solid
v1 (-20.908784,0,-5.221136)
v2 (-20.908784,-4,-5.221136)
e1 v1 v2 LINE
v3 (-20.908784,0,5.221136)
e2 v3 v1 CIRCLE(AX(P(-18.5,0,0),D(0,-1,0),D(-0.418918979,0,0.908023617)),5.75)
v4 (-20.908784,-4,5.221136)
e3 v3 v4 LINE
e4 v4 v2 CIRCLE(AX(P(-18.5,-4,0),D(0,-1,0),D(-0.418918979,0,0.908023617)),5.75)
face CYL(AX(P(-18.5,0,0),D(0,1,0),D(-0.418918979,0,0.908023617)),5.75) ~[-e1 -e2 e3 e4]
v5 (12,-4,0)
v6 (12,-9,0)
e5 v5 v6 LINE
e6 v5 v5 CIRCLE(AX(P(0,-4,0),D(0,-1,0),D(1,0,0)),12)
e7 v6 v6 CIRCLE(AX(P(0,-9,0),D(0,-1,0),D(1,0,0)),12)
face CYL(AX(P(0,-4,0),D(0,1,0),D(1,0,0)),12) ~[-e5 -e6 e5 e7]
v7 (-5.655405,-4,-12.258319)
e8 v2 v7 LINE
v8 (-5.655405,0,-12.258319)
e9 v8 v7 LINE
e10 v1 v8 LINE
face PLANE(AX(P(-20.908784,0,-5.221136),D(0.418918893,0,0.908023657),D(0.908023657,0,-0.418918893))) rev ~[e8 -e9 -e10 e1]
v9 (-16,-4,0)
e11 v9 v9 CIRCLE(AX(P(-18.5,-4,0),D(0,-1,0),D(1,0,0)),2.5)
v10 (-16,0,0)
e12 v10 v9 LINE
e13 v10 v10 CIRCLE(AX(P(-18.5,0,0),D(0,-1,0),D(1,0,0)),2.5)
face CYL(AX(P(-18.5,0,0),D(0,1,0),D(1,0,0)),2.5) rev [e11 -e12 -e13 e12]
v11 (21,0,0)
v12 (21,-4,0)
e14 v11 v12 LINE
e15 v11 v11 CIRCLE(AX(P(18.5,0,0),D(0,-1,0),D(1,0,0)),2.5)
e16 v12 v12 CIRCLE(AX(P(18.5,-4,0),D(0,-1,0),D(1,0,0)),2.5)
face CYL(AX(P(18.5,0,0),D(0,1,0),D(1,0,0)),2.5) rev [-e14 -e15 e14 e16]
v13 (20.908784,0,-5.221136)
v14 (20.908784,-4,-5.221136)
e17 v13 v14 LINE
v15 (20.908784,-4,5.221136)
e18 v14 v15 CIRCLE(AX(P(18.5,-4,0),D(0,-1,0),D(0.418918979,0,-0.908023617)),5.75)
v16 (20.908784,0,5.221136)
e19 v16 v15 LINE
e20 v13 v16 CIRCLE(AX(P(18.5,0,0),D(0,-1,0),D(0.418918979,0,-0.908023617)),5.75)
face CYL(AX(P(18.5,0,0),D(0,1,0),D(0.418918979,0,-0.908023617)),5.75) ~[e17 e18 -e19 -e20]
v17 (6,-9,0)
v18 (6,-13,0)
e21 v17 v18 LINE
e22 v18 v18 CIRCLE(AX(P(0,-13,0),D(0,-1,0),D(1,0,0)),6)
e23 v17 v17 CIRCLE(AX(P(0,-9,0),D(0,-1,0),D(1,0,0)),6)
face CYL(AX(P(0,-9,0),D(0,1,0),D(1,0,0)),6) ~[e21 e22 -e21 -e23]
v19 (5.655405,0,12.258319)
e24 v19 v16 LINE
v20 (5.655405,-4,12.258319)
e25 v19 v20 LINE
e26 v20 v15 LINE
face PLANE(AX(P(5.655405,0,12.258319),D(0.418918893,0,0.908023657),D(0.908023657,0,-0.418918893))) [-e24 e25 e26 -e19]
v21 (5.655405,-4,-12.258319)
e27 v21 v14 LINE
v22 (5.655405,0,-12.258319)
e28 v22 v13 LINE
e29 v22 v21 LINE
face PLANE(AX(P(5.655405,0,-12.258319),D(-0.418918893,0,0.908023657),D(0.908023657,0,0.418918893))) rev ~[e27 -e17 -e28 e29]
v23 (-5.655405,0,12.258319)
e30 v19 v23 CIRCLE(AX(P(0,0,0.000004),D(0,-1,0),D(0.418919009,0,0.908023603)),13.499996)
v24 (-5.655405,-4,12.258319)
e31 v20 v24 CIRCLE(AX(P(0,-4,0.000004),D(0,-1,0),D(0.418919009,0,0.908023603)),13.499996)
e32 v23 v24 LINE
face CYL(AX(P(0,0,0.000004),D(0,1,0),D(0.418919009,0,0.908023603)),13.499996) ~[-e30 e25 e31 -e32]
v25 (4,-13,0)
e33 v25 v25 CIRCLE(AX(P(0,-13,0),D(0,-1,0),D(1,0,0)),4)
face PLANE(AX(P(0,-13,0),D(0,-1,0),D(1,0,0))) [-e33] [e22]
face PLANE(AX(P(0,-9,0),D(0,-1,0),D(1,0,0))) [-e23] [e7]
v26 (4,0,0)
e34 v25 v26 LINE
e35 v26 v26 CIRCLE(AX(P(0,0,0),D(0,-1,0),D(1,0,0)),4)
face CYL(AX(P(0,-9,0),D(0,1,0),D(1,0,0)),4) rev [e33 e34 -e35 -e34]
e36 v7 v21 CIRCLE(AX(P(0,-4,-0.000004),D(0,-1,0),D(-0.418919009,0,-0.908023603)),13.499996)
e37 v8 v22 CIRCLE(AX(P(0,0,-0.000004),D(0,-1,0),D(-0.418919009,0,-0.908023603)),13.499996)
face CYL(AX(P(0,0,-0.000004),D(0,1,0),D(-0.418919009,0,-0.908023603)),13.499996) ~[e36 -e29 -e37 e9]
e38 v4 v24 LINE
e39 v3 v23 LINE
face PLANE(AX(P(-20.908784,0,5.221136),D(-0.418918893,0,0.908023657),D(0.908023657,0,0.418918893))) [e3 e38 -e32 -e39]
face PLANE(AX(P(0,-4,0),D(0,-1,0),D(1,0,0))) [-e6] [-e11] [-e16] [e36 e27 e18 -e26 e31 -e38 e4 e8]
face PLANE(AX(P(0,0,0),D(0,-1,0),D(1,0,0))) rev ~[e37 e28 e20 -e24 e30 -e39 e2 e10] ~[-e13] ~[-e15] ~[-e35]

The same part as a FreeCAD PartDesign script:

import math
import FreeCAD as App
import Part
import Sketcher
from FreeCAD import Vector
Q = App.Units.Quantity

doc = App.newDocument("Part")
params = doc.addObject("Spreadsheet::Sheet", "Params")
for row, (alias, value) in enumerate([
    ("sketch1_diameter", "5 mm"),
    ("sketch1_diameter2", "8 mm"),
    ("sketch1_radius", "5.75 mm"),
    ("pad1_length", "4 mm"),
    ("sketch2_diameter", "24 mm"),
    ("sketch2_diameter2", "8 mm"),
    ("pad2_length", "5 mm"),
    ("sketch3_diameter", "12 mm"),
    ("sketch3_diameter2", "8 mm"),
    ("pad3_length", "4 mm"),
], start=1):
    params.set(f"A{row}", alias)
    params.set(f"B{row}", "=" + value)
    params.setAlias(f"B{row}", alias)

body = doc.addObject("PartDesign::Body", "Body")

# Sketch on XZ plane
sketch1 = doc.addObject("Sketcher::SketchObject", "Sketch")
body.addObject(sketch1)
sketch1.AttachmentSupport = (doc.XZ_Plane, [""])
sketch1.MapMode = "FlatFace"
sketch1.addGeometry([
    Part.ArcOfCircle(Part.Circle(Vector(0, 0.000004, 0), Vector(0, 0, 1), 13.499996), math.radians(65.233641), math.radians(114.766359)),  # 0
    Part.LineSegment(Vector(-5.655405, 12.258319, 0), Vector(-20.908784, 5.221136, 0)),  # 1
    Part.ArcOfCircle(Part.Circle(Vector(-18.5, 0, 0), Vector(0, 0, 1), 5.75), math.radians(114.766357), math.radians(245.233643)),  # 2
    Part.LineSegment(Vector(-20.908784, -5.221136, 0), Vector(-5.655405, -12.258319, 0)),  # 3
    Part.ArcOfCircle(Part.Circle(Vector(0, -0.000004, 0), Vector(0, 0, 1), 13.499996), math.radians(-114.766359), math.radians(-65.233641)),  # 4
    Part.LineSegment(Vector(5.655405, -12.258319, 0), Vector(20.908784, -5.221136, 0)),  # 5
    Part.ArcOfCircle(Part.Circle(Vector(18.5, 0, 0), Vector(0, 0, 1), 5.75), math.radians(-65.233643), math.radians(65.233643)),  # 6
    Part.LineSegment(Vector(20.908784, 5.221136, 0), Vector(5.655405, 12.258319, 0)),  # 7
    Part.Circle(Vector(-18.5, 0, 0), Vector(0, 0, 1), 2.5),  # 8
    Part.Circle(Vector(0, 0, 0), Vector(0, 0, 1), 4),  # 9
    Part.Circle(Vector(18.5, 0, 0), Vector(0, 0, 1), 2.5),  # 10
], False)
sketch1.addConstraint([
    Sketcher.Constraint("Tangent", 0, 2, 1, 1),
    Sketcher.Constraint("Tangent", 1, 2, 2, 1),
    Sketcher.Constraint("Tangent", 2, 2, 3, 1),
    Sketcher.Constraint("Tangent", 3, 2, 4, 1),
    Sketcher.Constraint("Tangent", 4, 2, 5, 1),
    Sketcher.Constraint("Tangent", 5, 2, 6, 1),
    Sketcher.Constraint("Tangent", 6, 2, 7, 1),
    Sketcher.Constraint("Tangent", 7, 2, 0, 1),
    Sketcher.Constraint("Coincident", 0, 3, -1, 1),
    Sketcher.Constraint("Coincident", 4, 3, -1, 1),
    Sketcher.Constraint("Coincident", 9, 3, -1, 1),
    Sketcher.Constraint("Coincident", 8, 3, 2, 3),
    Sketcher.Constraint("Coincident", 10, 3, 6, 3),
    Sketcher.Constraint("Equal", 0, 4),
    Sketcher.Constraint("Equal", 2, 6),
    Sketcher.Constraint("Equal", 8, 10),
    Sketcher.Constraint("Symmetric", 2, 3, 6, 3, -1, 1),
    Sketcher.Constraint("PointOnObject", 2, 3, -1),
    Sketcher.Constraint("Diameter", 8, Q("5 mm")),
    Sketcher.Constraint("Diameter", 9, Q("8 mm")),
    Sketcher.Constraint("Radius", 2, Q("5.75 mm")),
    Sketcher.Constraint("DistanceX", 2, 3, 6, 3, Q("37 mm")),
    Sketcher.Constraint("Radius", 0, Q("13.499996 mm")),
])
sketch1.setExpression("Constraints[18]", "Params.sketch1_diameter")
sketch1.setExpression("Constraints[19]", "Params.sketch1_diameter2")
sketch1.setExpression("Constraints[20]", "Params.sketch1_radius")
pad1 = doc.addObject("PartDesign::Pad", "Pad")
body.addObject(pad1)
pad1.Profile = sketch1
pad1.setExpression("Length", "Params.pad1_length")

# Sketch on XZ plane
sketch2 = doc.addObject("Sketcher::SketchObject", "Sketch001")
body.addObject(sketch2)
sketch2.AttachmentSupport = (doc.XZ_Plane, [""])
sketch2.MapMode = "FlatFace"
sketch2.AttachmentOffset = App.Placement(Vector(0, 0, 4), App.Rotation())
sketch2.addGeometry([
    Part.Circle(Vector(0, 0, 0), Vector(0, 0, 1), 12),
    Part.Circle(Vector(0, 0, 0), Vector(0, 0, 1), 4),
], False)
sketch2.addConstraint([
    Sketcher.Constraint("Coincident", 0, 3, -1, 1),
    Sketcher.Constraint("Coincident", 1, 3, -1, 1),
    Sketcher.Constraint("Diameter", 0, Q("24 mm")),
    Sketcher.Constraint("Diameter", 1, Q("8 mm")),
])
sketch2.setExpression("Constraints[2]", "Params.sketch2_diameter")
sketch2.setExpression("Constraints[3]", "Params.sketch2_diameter2")
pad2 = doc.addObject("PartDesign::Pad", "Pad001")
body.addObject(pad2)
pad2.Profile = sketch2
pad2.setExpression("Length", "Params.pad2_length")

# Sketch on XZ plane
sketch3 = doc.addObject("Sketcher::SketchObject", "Sketch002")
body.addObject(sketch3)
sketch3.AttachmentSupport = (doc.XZ_Plane, [""])
sketch3.MapMode = "FlatFace"
sketch3.AttachmentOffset = App.Placement(Vector(0, 0, 9), App.Rotation())
sketch3.addGeometry([
    Part.Circle(Vector(0, 0, 0), Vector(0, 0, 1), 6),
    Part.Circle(Vector(0, 0, 0), Vector(0, 0, 1), 4),
], False)
sketch3.addConstraint([
    Sketcher.Constraint("Coincident", 0, 3, -1, 1),
    Sketcher.Constraint("Coincident", 1, 3, -1, 1),
    Sketcher.Constraint("Diameter", 0, Q("12 mm")),
    Sketcher.Constraint("Diameter", 1, Q("8 mm")),
])
sketch3.setExpression("Constraints[2]", "Params.sketch3_diameter")
sketch3.setExpression("Constraints[3]", "Params.sketch3_diameter2")
pad3 = doc.addObject("PartDesign::Pad", "Pad002")
body.addObject(pad3)
pad3.Profile = sketch3
pad3.setExpression("Length", "Params.pad3_length")

doc.recompute()
